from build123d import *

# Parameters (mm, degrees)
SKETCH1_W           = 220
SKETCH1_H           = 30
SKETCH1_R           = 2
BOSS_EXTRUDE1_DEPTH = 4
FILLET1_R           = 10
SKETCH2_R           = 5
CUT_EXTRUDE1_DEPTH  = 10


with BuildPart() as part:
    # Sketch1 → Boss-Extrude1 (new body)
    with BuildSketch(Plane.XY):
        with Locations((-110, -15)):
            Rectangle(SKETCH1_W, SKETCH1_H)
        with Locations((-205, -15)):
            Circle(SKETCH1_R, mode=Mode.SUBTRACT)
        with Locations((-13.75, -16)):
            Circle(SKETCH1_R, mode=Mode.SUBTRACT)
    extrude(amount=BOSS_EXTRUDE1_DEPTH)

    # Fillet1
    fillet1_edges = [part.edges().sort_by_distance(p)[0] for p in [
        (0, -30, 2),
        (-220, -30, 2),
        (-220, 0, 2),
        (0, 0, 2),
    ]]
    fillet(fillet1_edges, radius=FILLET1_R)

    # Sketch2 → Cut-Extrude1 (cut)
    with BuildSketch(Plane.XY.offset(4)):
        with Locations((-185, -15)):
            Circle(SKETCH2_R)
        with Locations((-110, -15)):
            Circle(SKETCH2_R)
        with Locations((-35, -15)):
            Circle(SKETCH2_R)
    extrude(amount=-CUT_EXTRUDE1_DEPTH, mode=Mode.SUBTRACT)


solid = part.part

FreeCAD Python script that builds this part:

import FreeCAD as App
import Part
import Sketcher
Q = App.Units.Quantity


def edges_at(feature, points):
    """Names of the edges that pass closest to the given points."""
    edges = feature.Shape.Edges
    near = lambda p: min(range(len(edges)), key=lambda i: edges[i].distToShape(Part.Vertex(*p))[0])
    return sorted({f"Edge{near(p) + 1}" for p in points})

doc = App.newDocument("Part")
body = doc.addObject("PartDesign::Body", "Body")

# Sketch on XY plane
sketch1 = body.newObject("Sketcher::SketchObject", "Sketch")
sketch1.AttachmentSupport = (doc.getObject("XY_Plane"), [""])
sketch1.MapMode = "FlatFace"
sketch1.addGeometry(Part.LineSegment(App.Vector(-220, 0, 0), App.Vector(-220, -30, 0)), False)
sketch1.addGeometry(Part.LineSegment(App.Vector(-220, -30, 0), App.Vector(0, -30, 0)), False)
sketch1.addGeometry(Part.LineSegment(App.Vector(0, -30, 0), App.Vector(0, 0, 0)), False)
sketch1.addGeometry(Part.LineSegment(App.Vector(0, 0, 0), App.Vector(-220, 0, 0)), False)
sketch1.addGeometry(Part.Circle(App.Vector(-13.8, -16, 0), App.Vector(0, 0, 1), 2), False)
sketch1.addGeometry(Part.Circle(App.Vector(-205, -15, 0), App.Vector(0, 0, 1), 2), False)
sketch1.addConstraint(Sketcher.Constraint("Coincident", 0, 2, 1, 1))
sketch1.addConstraint(Sketcher.Constraint("Coincident", 1, 2, 2, 1))
sketch1.addConstraint(Sketcher.Constraint("Coincident", 2, 2, 3, 1))
sketch1.addConstraint(Sketcher.Constraint("Coincident", 3, 2, 0, 1))
sketch1.addConstraint(Sketcher.Constraint("Vertical", 0))
sketch1.addConstraint(Sketcher.Constraint("Horizontal", 1))
sketch1.addConstraint(Sketcher.Constraint("Vertical", 2))
sketch1.addConstraint(Sketcher.Constraint("Horizontal", 3))
sketch1.addConstraint(Sketcher.Constraint("Coincident", 2, 2, -1, 1))
sketch1.addConstraint(Sketcher.Constraint("Equal", 4, 5))
sketch1.addConstraint(Sketcher.Constraint("Diameter", 4, Q("4 mm")))
sketch1.addConstraint(Sketcher.Constraint("DistanceX", 1, 1, 1, 2, Q("220 mm")))
sketch1.addConstraint(Sketcher.Constraint("DistanceY", 0, 2, 0, 1, Q("30 mm")))
sketch1.addConstraint(Sketcher.Constraint("DistanceY", 4, 3, -1, 1, Q("16 mm")))
sketch1.addConstraint(Sketcher.Constraint("DistanceX", 5, 3, -1, 1, Q("205 mm")))
sketch1.addConstraint(Sketcher.Constraint("DistanceY", 5, 3, -1, 1, Q("15 mm")))
sketch1.addConstraint(Sketcher.Constraint("DistanceX", 4, 3, -1, 1, Q("13.75 mm")))
pad1 = body.newObject("PartDesign::Pad", "Pad")
pad1.Profile = sketch1
pad1.Length = 4
doc.recompute()

fillet = body.newObject("PartDesign::Fillet", "Fillet")
fillet.Base = (pad1, edges_at(pad1, [
    (0, -30, 2),
    (-220, -30, 2),
    (-220, 0, 2),
    (0, 0, 2),
]))
fillet.Radius = 10

# Sketch on XY plane
sketch2 = body.newObject("Sketcher::SketchObject", "Sketch001")
sketch2.AttachmentSupport = (doc.getObject("XY_Plane"), [""])
sketch2.MapMode = "FlatFace"
sketch2.AttachmentOffset = App.Placement(App.Vector(0, 0, 4), App.Rotation())
sketch2.addGeometry(Part.Circle(App.Vector(-185, -15, 0), App.Vector(0, 0, 1), 5), False)
sketch2.addGeometry(Part.Circle(App.Vector(-110, -15, 0), App.Vector(0, 0, 1), 5), False)
sketch2.addGeometry(Part.Circle(App.Vector(-35, -15, 0), App.Vector(0, 0, 1), 5), False)
sketch2.addConstraint(Sketcher.Constraint("Equal", 0, 1))
sketch2.addConstraint(Sketcher.Constraint("Equal", 1, 2))
sketch2.addConstraint(Sketcher.Constraint("Horizontal", 0, 3, 1, 3))
sketch2.addConstraint(Sketcher.Constraint("Horizontal", 1, 3, 2, 3))
sketch2.addConstraint(Sketcher.Constraint("Diameter", 0, Q("10 mm")))
sketch2.addConstraint(Sketcher.Constraint("DistanceX", 0, 3, -1, 1, Q("185 mm")))
sketch2.addConstraint(Sketcher.Constraint("DistanceY", 0, 3, -1, 1, Q("15 mm")))
sketch2.addConstraint(Sketcher.Constraint("DistanceX", 1, 3, -1, 1, Q("110 mm")))
sketch2.addConstraint(Sketcher.Constraint("DistanceX", 2, 3, -1, 1, Q("35 mm")))
pocket1 = body.newObject("PartDesign::Pocket", "Pocket")
pocket1.Profile = sketch2
pocket1.Length = 10

doc.recompute()
